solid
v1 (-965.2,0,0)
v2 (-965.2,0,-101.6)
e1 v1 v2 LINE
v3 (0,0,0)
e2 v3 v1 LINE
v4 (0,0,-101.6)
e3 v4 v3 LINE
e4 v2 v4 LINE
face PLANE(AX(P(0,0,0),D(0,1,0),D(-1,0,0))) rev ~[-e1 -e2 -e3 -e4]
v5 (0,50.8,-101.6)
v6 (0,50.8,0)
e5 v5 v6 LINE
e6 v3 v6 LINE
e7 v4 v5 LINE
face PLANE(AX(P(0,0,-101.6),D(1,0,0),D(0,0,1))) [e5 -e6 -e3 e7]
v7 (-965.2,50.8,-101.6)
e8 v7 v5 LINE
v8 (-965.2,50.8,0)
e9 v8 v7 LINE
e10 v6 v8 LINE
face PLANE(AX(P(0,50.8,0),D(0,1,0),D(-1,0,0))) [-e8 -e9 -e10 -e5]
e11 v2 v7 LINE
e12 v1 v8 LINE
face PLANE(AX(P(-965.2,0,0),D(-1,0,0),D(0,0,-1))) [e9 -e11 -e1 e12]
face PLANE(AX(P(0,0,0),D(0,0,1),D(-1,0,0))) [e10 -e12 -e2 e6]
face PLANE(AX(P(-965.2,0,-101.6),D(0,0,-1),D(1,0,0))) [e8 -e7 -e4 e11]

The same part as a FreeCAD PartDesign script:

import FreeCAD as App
import Part
import Sketcher
Q = App.Units.Quantity

doc = App.newDocument("Part")
body = doc.addObject("PartDesign::Body", "Body")

# Sketch on XZ plane
sketch1 = doc.addObject("Sketcher::SketchObject", "Sketch")
body.addObject(sketch1)
sketch1.AttachmentSupport = (doc.XZ_Plane, [""])
sketch1.MapMode = "FlatFace"
sketch1.addGeometry([
    Part.LineSegment(App.Vector(-965.2, 0, 0), App.Vector(0, 0, 0)),
    Part.LineSegment(App.Vector(0, 0, 0), App.Vector(0, -101.6, 0)),
    Part.LineSegment(App.Vector(0, -101.6, 0), App.Vector(-965.2, -101.6, 0)),
    Part.LineSegment(App.Vector(-965.2, -101.6, 0), App.Vector(-965.2, 0, 0)),
], False)
sketch1.addConstraint([
    Sketcher.Constraint("Coincident", 0, 2, 1, 1),
    Sketcher.Constraint("Coincident", 1, 2, 2, 1),
    Sketcher.Constraint("Coincident", 2, 2, 3, 1),
    Sketcher.Constraint("Coincident", 3, 2, 0, 1),
    Sketcher.Constraint("Horizontal", 0),
    Sketcher.Constraint("Vertical", 1),
    Sketcher.Constraint("Horizontal", 2),
    Sketcher.Constraint("Vertical", 3),
    Sketcher.Constraint("Coincident", 0, 2, -1, 1),
    Sketcher.Constraint("DistanceX", 0, 1, 0, 2, Q("38 in")),
    Sketcher.Constraint("DistanceY", 1, 2, 1, 1, Q("4 in")),
])
pad1 = doc.addObject("PartDesign::Pad", "Pad")
body.addObject(pad1)
pad1.Profile = sketch1
pad1.Length = Q("2 in")
pad1.Reversed = True

doc.recompute()
